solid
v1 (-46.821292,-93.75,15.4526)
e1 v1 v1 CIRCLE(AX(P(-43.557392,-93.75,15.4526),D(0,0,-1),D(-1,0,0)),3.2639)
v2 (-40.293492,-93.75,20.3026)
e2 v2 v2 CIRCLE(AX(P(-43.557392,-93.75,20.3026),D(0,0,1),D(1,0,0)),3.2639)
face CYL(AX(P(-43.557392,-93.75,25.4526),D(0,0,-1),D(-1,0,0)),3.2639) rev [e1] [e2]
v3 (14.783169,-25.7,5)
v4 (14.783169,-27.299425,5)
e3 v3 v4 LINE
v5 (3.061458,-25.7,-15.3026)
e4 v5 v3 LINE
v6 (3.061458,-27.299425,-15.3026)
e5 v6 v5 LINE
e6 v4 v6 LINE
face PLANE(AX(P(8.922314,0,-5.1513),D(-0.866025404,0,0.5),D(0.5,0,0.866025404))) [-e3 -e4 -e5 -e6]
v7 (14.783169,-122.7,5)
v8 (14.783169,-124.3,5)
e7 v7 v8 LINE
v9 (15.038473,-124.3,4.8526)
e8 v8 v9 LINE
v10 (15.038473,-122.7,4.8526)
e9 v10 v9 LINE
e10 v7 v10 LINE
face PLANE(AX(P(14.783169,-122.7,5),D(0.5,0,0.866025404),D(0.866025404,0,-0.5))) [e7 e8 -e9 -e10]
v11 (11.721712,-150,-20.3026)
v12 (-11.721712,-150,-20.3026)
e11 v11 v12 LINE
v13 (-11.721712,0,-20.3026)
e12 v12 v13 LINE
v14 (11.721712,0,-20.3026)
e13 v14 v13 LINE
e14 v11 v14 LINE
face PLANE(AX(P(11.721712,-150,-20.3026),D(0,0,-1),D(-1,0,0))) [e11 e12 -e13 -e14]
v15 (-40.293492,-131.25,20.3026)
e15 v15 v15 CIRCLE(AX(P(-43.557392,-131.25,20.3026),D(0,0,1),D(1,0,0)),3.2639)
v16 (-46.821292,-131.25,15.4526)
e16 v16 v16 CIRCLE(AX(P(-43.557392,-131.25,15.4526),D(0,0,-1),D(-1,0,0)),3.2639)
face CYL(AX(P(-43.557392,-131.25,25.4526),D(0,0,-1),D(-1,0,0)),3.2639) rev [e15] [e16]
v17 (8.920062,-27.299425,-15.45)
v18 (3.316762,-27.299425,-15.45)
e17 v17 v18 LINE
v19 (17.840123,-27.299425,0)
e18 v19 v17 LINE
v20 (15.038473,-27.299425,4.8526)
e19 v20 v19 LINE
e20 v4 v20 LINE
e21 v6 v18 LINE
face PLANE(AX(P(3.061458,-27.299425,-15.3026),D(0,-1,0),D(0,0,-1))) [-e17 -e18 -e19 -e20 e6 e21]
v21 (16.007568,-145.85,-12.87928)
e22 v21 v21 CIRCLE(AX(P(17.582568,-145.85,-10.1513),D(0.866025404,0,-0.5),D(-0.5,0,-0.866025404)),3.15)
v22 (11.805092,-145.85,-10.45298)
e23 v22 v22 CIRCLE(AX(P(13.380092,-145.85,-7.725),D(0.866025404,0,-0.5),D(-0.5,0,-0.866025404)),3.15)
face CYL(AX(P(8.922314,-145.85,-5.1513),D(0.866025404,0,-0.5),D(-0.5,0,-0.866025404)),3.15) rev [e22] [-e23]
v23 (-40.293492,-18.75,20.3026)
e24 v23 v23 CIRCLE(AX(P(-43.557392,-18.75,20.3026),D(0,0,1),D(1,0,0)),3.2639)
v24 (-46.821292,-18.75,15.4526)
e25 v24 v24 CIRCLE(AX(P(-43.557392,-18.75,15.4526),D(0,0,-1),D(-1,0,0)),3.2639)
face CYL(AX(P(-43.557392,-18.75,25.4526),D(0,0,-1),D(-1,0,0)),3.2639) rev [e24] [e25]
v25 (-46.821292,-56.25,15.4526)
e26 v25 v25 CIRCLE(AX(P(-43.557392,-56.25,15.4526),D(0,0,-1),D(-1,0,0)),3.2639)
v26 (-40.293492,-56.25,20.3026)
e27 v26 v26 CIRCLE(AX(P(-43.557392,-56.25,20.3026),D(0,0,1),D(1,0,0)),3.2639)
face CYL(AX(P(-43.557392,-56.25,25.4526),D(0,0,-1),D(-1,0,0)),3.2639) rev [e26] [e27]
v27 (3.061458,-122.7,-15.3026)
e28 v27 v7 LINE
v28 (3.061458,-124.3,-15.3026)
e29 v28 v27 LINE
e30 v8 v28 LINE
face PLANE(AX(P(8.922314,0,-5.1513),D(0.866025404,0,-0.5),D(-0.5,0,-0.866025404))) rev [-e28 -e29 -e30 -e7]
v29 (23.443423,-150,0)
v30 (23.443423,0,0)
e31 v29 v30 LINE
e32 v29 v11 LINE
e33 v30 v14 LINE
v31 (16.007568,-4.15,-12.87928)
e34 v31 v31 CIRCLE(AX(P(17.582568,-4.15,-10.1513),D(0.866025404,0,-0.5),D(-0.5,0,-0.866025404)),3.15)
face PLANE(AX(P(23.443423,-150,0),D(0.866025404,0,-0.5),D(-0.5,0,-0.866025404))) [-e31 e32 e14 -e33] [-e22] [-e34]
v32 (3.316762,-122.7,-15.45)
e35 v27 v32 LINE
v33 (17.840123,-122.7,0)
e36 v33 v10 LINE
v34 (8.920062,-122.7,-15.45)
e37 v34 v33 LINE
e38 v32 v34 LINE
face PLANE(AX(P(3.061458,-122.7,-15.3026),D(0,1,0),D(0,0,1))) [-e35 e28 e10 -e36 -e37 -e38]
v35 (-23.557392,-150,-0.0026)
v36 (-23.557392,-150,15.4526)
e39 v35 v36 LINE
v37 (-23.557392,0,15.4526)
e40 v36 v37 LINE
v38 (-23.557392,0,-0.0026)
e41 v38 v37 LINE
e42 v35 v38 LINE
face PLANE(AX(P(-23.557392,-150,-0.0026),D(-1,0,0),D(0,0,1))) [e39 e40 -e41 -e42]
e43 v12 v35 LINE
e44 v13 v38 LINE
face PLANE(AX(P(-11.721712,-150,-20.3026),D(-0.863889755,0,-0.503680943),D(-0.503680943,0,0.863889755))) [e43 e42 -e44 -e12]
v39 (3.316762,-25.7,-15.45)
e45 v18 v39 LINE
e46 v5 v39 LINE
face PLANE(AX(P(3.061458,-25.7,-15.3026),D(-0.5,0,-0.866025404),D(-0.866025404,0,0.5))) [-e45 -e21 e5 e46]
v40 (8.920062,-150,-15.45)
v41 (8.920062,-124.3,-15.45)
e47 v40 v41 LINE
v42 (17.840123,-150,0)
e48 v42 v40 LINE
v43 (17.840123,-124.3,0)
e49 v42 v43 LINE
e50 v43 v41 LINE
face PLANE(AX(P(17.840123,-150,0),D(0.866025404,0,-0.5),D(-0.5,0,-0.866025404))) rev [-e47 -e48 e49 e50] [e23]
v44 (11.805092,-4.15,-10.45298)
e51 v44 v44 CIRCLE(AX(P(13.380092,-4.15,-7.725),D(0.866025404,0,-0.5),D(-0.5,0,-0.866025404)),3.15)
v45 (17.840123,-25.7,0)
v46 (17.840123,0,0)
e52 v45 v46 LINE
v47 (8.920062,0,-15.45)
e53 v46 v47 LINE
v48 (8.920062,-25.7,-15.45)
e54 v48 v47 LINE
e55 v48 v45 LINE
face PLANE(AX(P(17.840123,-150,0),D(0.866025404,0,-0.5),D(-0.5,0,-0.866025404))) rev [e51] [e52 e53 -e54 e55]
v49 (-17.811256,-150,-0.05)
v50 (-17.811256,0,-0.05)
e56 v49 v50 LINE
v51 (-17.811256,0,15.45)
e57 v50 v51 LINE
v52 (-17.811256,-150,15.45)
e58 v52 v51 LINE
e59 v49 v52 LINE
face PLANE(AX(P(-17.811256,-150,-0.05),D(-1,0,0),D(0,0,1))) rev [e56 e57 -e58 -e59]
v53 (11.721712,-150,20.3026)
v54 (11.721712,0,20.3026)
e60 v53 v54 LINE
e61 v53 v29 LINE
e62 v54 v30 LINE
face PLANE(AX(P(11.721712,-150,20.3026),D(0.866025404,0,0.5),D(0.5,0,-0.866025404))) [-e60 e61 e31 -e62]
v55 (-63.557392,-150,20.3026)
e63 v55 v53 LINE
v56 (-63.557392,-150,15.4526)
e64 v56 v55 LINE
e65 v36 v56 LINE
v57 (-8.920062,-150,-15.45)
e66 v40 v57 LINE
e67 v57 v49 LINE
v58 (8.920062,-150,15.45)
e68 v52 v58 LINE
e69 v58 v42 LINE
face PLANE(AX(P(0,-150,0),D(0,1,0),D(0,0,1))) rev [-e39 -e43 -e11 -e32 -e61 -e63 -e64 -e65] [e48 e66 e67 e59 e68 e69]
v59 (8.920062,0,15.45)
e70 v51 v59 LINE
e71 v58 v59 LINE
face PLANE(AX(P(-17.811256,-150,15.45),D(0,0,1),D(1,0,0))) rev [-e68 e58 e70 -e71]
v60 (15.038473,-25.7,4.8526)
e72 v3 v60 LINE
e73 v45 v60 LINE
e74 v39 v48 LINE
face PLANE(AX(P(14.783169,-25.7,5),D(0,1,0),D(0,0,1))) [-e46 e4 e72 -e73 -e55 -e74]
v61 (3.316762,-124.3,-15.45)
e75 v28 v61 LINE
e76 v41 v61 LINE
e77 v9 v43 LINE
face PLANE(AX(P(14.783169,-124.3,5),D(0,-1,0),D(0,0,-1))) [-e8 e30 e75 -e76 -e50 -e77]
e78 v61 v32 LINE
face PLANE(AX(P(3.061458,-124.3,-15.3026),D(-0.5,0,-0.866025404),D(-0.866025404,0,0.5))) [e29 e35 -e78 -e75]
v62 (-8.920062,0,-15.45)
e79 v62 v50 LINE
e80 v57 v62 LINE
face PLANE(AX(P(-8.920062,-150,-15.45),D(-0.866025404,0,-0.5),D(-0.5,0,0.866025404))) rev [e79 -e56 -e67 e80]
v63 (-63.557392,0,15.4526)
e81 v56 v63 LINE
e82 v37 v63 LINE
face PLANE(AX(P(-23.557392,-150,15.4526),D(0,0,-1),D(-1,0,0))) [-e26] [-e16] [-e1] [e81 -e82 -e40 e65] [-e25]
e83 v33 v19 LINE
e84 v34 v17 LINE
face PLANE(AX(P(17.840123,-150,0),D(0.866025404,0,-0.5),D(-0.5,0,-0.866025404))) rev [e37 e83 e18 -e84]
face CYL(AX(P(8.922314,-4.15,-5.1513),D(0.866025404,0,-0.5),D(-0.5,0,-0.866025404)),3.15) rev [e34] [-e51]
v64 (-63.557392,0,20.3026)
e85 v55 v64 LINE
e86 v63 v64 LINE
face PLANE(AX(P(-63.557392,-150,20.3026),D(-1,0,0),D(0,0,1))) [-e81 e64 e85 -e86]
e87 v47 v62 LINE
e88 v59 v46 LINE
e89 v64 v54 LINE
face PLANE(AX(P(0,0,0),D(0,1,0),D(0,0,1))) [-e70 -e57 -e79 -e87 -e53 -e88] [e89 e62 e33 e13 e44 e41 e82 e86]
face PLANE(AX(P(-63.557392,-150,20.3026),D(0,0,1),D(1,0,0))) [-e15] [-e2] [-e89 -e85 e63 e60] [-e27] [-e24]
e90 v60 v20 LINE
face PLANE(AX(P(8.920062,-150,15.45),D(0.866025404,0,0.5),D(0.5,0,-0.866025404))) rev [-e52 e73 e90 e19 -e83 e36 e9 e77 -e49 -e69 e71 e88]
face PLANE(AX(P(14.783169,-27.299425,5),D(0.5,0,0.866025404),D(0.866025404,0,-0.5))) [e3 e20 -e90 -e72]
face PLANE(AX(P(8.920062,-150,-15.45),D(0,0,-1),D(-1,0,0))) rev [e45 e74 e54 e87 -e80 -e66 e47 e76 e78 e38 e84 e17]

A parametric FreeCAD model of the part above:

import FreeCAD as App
import Part
import Sketcher
Q = App.Units.Quantity

doc = App.newDocument("Part")
body = doc.addObject("PartDesign::Body", "Body")

sketch1 = body.newObject("Sketcher::SketchObject", "Sketch")
sketch1.AttachmentSupport = (doc.getObject("XZ_Plane"), [""])
sketch1.MapMode = "FlatFace"
sketch1.addGeometry(Part.LineSegment(App.Vector(-23.6, 0, 0), App.Vector(-23.6, 15.5, 0)), False)
sketch1.addGeometry(Part.LineSegment(App.Vector(-23.6, 15.5, 0), App.Vector(-63.6, 15.5, 0)), False)
sketch1.addGeometry(Part.LineSegment(App.Vector(-63.6, 15.5, 0), App.Vector(-63.6, 20.3, 0)), False)
sketch1.addGeometry(Part.LineSegment(App.Vector(-63.6, 20.3, 0), App.Vector(11.7, 20.3, 0)), False)
sketch1.addGeometry(Part.LineSegment(App.Vector(11.7, 20.3, 0), App.Vector(23.4, 0, 0)), False)
sketch1.addGeometry(Part.LineSegment(App.Vector(23.4, 0, 0), App.Vector(11.7, -20.3, 0)), False)
sketch1.addGeometry(Part.LineSegment(App.Vector(11.7, -20.3, 0), App.Vector(-11.7, -20.3, 0)), False)
sketch1.addGeometry(Part.LineSegment(App.Vector(-11.7, -20.3, 0), App.Vector(-23.6, 0, 0)), False)
sketch1.addGeometry(Part.LineSegment(App.Vector(-17.8, 15.4, 0), App.Vector(-17.8, -0.1, 0)), False)
sketch1.addGeometry(Part.LineSegment(App.Vector(-17.8, -0.1, 0), App.Vector(-8.9, -15.4, 0)), False)
sketch1.addGeometry(Part.LineSegment(App.Vector(-8.9, -15.4, 0), App.Vector(8.9, -15.4, 0)), False)
sketch1.addGeometry(Part.LineSegment(App.Vector(8.9, -15.4, 0), App.Vector(17.8, 0, 0)), False)
sketch1.addGeometry(Part.LineSegment(App.Vector(17.8, 0, 0), App.Vector(8.9, 15.4, 0)), False)
sketch1.addGeometry(Part.LineSegment(App.Vector(8.9, 15.4, 0), App.Vector(-17.8, 15.4, 0)), False)
sketch1.addConstraint(Sketcher.Constraint("Coincident", 0, 2, 1, 1))
sketch1.addConstraint(Sketcher.Constraint("Coincident", 1, 2, 2, 1))
sketch1.addConstraint(Sketcher.Constraint("Coincident", 2, 2, 3, 1))
sketch1.addConstraint(Sketcher.Constraint("Coincident", 3, 2, 4, 1))
sketch1.addConstraint(Sketcher.Constraint("Coincident", 4, 2, 5, 1))
sketch1.addConstraint(Sketcher.Constraint("Coincident", 5, 2, 6, 1))
sketch1.addConstraint(Sketcher.Constraint("Coincident", 6, 2, 7, 1))
sketch1.addConstraint(Sketcher.Constraint("Coincident", 7, 2, 0, 1))
sketch1.addConstraint(Sketcher.Constraint("Coincident", 8, 2, 9, 1))
sketch1.addConstraint(Sketcher.Constraint("Coincident", 9, 2, 10, 1))
sketch1.addConstraint(Sketcher.Constraint("Coincident", 10, 2, 11, 1))
sketch1.addConstraint(Sketcher.Constraint("Coincident", 11, 2, 12, 1))
sketch1.addConstraint(Sketcher.Constraint("Coincident", 12, 2, 13, 1))
sketch1.addConstraint(Sketcher.Constraint("Coincident", 13, 2, 8, 1))
sketch1.addConstraint(Sketcher.Constraint("Vertical", 0))
sketch1.addConstraint(Sketcher.Constraint("Horizontal", 1))
sketch1.addConstraint(Sketcher.Constraint("Vertical", 2))
sketch1.addConstraint(Sketcher.Constraint("Horizontal", 3))
sketch1.addConstraint(Sketcher.Constraint("Horizontal", 6))
sketch1.addConstraint(Sketcher.Constraint("Vertical", 8))
sketch1.addConstraint(Sketcher.Constraint("Horizontal", 10))
sketch1.addConstraint(Sketcher.Constraint("Horizontal", 13))
sketch1.addConstraint(Sketcher.Constraint("Symmetric", 3, 2, 6, 2, -1, 1))
sketch1.addConstraint(Sketcher.Constraint("Symmetric", 9, 2, 12, 2, -1, 1))
sketch1.addConstraint(Sketcher.Constraint("PointOnObject", 4, 2, -1))
sketch1.addConstraint(Sketcher.Constraint("PointOnObject", 11, 2, -1))
sketch1.addConstraint(Sketcher.Constraint("Parallel", 4, 9))
sketch1.addConstraint(Sketcher.Constraint("Parallel", 5, 11))
sketch1.addConstraint(Sketcher.Constraint("Parallel", 9, 12))
sketch1.addConstraint(Sketcher.Constraint("Vertical", 3, 2, 5, 2))
sketch1.addConstraint(Sketcher.Constraint("DistanceX", 1, 2, 1, 1, 40.0))
sketch1.addConstraint(Sketcher.Constraint("Angle", 4, Q("-60 deg")))
sketch1.addConstraint(Sketcher.Constraint("DistanceY", 8, 2, 8, 1, 15.5))
sketch1.addConstraint(Sketcher.Constraint("DistanceY", 2, 1, 2, 2, 4.85))
sketch1.addConstraint(Sketcher.Constraint("DistanceY", 6, 2, 7, 2, 20.3))
sketch1.addConstraint(Sketcher.Constraint("DistanceY", 9, 2, 8, 2, 15.4))
sketch1.addConstraint(Sketcher.Constraint("DistanceY", 0, 1, 0, 2, 15.455201))
sketch1.addConstraint(Sketcher.Constraint("DistanceX", 11, 2, 4, 2, 5.6033))
sketch1.addConstraint(Sketcher.Constraint("Distance", 7, 23.498369))
sketch1.addConstraint(Sketcher.Constraint("DistanceX", 3, 1, 3, 2, 75.279104))
pad1 = body.newObject("PartDesign::Pad", "Pad")
pad1.Profile = sketch1
pad1.Length = 150

sketch2 = body.newObject("Sketcher::SketchObject", "Sketch001")
sketch2.AttachmentSupport = (doc.getObject("XY_Plane"), [""])
sketch2.MapMode = "FlatFace"
sketch2.AttachmentOffset = App.Placement(App.Vector(0, 0, 15.4526), App.Rotation())
sketch2.addGeometry(Part.Circle(App.Vector(-43.6, -131.2, 0), App.Vector(0, 0, 1), 3.3), False)
sketch2.addGeometry(Part.Circle(App.Vector(-43.6, -93.8, 0), App.Vector(0, 0, 1), 3.3), False)
sketch2.addGeometry(Part.Circle(App.Vector(-43.6, -56.2, 0), App.Vector(0, 0, 1), 3.3), False)
sketch2.addGeometry(Part.Circle(App.Vector(-43.6, -18.8, 0), App.Vector(0, 0, 1), 3.3), False)
sketch2.addConstraint(Sketcher.Constraint("Equal", 0, 1))
sketch2.addConstraint(Sketcher.Constraint("Equal", 1, 2))
sketch2.addConstraint(Sketcher.Constraint("Equal", 2, 3))
sketch2.addConstraint(Sketcher.Constraint("Vertical", 0, 3, 1, 3))
sketch2.addConstraint(Sketcher.Constraint("Vertical", 1, 3, 2, 3))
sketch2.addConstraint(Sketcher.Constraint("Vertical", 2, 3, 3, 3))
sketch2.addConstraint(Sketcher.Constraint("DistanceY", 0, 3, 2, 3, 75.0))
sketch2.addConstraint(Sketcher.Constraint("DistanceY", 1, 3, 3, 3, 75.0))
sketch2.addConstraint(Sketcher.Constraint("Diameter", 0, 6.5278))
sketch2.addConstraint(Sketcher.Constraint("DistanceY", 0, 3, 1, 3, 37.5))
sketch2.addConstraint(Sketcher.Constraint("DistanceY", 0, 3, -1, 1, 131.25))
sketch2.addConstraint(Sketcher.Constraint("DistanceX", 0, 3, -1, 1, 43.557392))
pocket1 = body.newObject("PartDesign::Pocket", "Pocket")
pocket1.Profile = sketch2
pocket1.Length = 10
pocket1.Reversed = True

sketch3 = body.newObject("Sketcher::SketchObject", "Sketch002")
sketch3.Placement = App.Placement(App.Vector(17.582568, 0, -10.1513), App.Rotation(App.Vector(-0.5, 0, -0.866025404), App.Vector(0, 1, 0), App.Vector(0.866025404, 0, -0.5), "ZXY"))
sketch3.addGeometry(Part.Circle(App.Vector(0, -4.2, 0), App.Vector(0, 0, 1), 3.1), False)
sketch3.addGeometry(Part.Circle(App.Vector(0, -145.9, 0), App.Vector(0, 0, 1), 3.1), False)
sketch3.addConstraint(Sketcher.Constraint("Equal", 0, 1))
sketch3.addConstraint(Sketcher.Constraint("PointOnObject", 0, 3, -2))
sketch3.addConstraint(Sketcher.Constraint("PointOnObject", 1, 3, -2))
sketch3.addConstraint(Sketcher.Constraint("Diameter", 0, 6.3))
sketch3.addConstraint(Sketcher.Constraint("DistanceY", 1, 3, 0, 3, 141.7))
sketch3.addConstraint(Sketcher.Constraint("DistanceY", 0, 3, -1, 1, 4.15))
pocket2 = body.newObject("PartDesign::Pocket", "Pocket001")
pocket2.Profile = sketch3
pocket2.Length = 10

sketch4 = body.newObject("Sketcher::SketchObject", "Sketch003")
sketch4.Placement = App.Placement(App.Vector(17.582568, 0, -10.1513), App.Rotation(App.Vector(-0.5, 0, -0.866025404), App.Vector(0, 1, 0), App.Vector(0.866025404, 0, -0.5), "ZXY"))
sketch4.addGeometry(Part.LineSegment(App.Vector(-11.7, -25.7, 0), App.Vector(-11.7, -27.3, 0)), False)
sketch4.addGeometry(Part.LineSegment(App.Vector(-11.7, -27.3, 0), App.Vector(11.7, -27.3, 0)), False)
sketch4.addGeometry(Part.LineSegment(App.Vector(11.7, -27.3, 0), App.Vector(11.7, -25.7, 0)), False)
sketch4.addGeometry(Part.LineSegment(App.Vector(11.7, -25.7, 0), App.Vector(-11.7, -25.7, 0)), False)
sketch4.addGeometry(Part.LineSegment(App.Vector(-11.7, -122.7, 0), App.Vector(-11.7, -124.3, 0)), False)
sketch4.addGeometry(Part.LineSegment(App.Vector(-11.7, -124.3, 0), App.Vector(11.7, -124.3, 0)), False)
sketch4.addGeometry(Part.LineSegment(App.Vector(11.7, -124.3, 0), App.Vector(11.7, -122.7, 0)), False)
sketch4.addGeometry(Part.LineSegment(App.Vector(11.7, -122.7, 0), App.Vector(-11.7, -122.7, 0)), False)
sketch4.addConstraint(Sketcher.Constraint("Coincident", 0, 2, 1, 1))
sketch4.addConstraint(Sketcher.Constraint("Coincident", 1, 2, 2, 1))
sketch4.addConstraint(Sketcher.Constraint("Coincident", 2, 2, 3, 1))
sketch4.addConstraint(Sketcher.Constraint("Coincident", 3, 2, 0, 1))
sketch4.addConstraint(Sketcher.Constraint("Coincident", 4, 2, 5, 1))
sketch4.addConstraint(Sketcher.Constraint("Coincident", 5, 2, 6, 1))
sketch4.addConstraint(Sketcher.Constraint("Coincident", 6, 2, 7, 1))
sketch4.addConstraint(Sketcher.Constraint("Coincident", 7, 2, 4, 1))
sketch4.addConstraint(Sketcher.Constraint("Vertical", 0))
sketch4.addConstraint(Sketcher.Constraint("Horizontal", 1))
sketch4.addConstraint(Sketcher.Constraint("Vertical", 2))
sketch4.addConstraint(Sketcher.Constraint("Horizontal", 3))
sketch4.addConstraint(Sketcher.Constraint("Vertical", 4))
sketch4.addConstraint(Sketcher.Constraint("Horizontal", 5))
sketch4.addConstraint(Sketcher.Constraint("Vertical", 6))
sketch4.addConstraint(Sketcher.Constraint("Horizontal", 7))
sketch4.addConstraint(Sketcher.Constraint("Vertical", 3, 2, 4, 2))
sketch4.addConstraint(Sketcher.Constraint("Vertical", 2, 2, 5, 2))
sketch4.addConstraint(Sketcher.Constraint("DistanceY", 4, 2, 4, 1, 1.6))
sketch4.addConstraint(Sketcher.Constraint("DistanceY", 6, 2, 2, 2, 97.0))
sketch4.addConstraint(Sketcher.Constraint("DistanceY", 2, 2, -1, 1, 25.7))
sketch4.addConstraint(Sketcher.Constraint("DistanceX", 1, 1, 1, 2, 23.443423))
sketch4.addConstraint(Sketcher.Constraint("DistanceY", 0, 2, 0, 1, 1.599425))
sketch4.addConstraint(Sketcher.Constraint("DistanceX", 0, 2, -1, 1, 11.721712))
pad2 = body.newObject("PartDesign::Pad", "Pad001")
pad2.Profile = sketch4
pad2.Length = 10
pad2.Reversed = True

doc.recompute()
